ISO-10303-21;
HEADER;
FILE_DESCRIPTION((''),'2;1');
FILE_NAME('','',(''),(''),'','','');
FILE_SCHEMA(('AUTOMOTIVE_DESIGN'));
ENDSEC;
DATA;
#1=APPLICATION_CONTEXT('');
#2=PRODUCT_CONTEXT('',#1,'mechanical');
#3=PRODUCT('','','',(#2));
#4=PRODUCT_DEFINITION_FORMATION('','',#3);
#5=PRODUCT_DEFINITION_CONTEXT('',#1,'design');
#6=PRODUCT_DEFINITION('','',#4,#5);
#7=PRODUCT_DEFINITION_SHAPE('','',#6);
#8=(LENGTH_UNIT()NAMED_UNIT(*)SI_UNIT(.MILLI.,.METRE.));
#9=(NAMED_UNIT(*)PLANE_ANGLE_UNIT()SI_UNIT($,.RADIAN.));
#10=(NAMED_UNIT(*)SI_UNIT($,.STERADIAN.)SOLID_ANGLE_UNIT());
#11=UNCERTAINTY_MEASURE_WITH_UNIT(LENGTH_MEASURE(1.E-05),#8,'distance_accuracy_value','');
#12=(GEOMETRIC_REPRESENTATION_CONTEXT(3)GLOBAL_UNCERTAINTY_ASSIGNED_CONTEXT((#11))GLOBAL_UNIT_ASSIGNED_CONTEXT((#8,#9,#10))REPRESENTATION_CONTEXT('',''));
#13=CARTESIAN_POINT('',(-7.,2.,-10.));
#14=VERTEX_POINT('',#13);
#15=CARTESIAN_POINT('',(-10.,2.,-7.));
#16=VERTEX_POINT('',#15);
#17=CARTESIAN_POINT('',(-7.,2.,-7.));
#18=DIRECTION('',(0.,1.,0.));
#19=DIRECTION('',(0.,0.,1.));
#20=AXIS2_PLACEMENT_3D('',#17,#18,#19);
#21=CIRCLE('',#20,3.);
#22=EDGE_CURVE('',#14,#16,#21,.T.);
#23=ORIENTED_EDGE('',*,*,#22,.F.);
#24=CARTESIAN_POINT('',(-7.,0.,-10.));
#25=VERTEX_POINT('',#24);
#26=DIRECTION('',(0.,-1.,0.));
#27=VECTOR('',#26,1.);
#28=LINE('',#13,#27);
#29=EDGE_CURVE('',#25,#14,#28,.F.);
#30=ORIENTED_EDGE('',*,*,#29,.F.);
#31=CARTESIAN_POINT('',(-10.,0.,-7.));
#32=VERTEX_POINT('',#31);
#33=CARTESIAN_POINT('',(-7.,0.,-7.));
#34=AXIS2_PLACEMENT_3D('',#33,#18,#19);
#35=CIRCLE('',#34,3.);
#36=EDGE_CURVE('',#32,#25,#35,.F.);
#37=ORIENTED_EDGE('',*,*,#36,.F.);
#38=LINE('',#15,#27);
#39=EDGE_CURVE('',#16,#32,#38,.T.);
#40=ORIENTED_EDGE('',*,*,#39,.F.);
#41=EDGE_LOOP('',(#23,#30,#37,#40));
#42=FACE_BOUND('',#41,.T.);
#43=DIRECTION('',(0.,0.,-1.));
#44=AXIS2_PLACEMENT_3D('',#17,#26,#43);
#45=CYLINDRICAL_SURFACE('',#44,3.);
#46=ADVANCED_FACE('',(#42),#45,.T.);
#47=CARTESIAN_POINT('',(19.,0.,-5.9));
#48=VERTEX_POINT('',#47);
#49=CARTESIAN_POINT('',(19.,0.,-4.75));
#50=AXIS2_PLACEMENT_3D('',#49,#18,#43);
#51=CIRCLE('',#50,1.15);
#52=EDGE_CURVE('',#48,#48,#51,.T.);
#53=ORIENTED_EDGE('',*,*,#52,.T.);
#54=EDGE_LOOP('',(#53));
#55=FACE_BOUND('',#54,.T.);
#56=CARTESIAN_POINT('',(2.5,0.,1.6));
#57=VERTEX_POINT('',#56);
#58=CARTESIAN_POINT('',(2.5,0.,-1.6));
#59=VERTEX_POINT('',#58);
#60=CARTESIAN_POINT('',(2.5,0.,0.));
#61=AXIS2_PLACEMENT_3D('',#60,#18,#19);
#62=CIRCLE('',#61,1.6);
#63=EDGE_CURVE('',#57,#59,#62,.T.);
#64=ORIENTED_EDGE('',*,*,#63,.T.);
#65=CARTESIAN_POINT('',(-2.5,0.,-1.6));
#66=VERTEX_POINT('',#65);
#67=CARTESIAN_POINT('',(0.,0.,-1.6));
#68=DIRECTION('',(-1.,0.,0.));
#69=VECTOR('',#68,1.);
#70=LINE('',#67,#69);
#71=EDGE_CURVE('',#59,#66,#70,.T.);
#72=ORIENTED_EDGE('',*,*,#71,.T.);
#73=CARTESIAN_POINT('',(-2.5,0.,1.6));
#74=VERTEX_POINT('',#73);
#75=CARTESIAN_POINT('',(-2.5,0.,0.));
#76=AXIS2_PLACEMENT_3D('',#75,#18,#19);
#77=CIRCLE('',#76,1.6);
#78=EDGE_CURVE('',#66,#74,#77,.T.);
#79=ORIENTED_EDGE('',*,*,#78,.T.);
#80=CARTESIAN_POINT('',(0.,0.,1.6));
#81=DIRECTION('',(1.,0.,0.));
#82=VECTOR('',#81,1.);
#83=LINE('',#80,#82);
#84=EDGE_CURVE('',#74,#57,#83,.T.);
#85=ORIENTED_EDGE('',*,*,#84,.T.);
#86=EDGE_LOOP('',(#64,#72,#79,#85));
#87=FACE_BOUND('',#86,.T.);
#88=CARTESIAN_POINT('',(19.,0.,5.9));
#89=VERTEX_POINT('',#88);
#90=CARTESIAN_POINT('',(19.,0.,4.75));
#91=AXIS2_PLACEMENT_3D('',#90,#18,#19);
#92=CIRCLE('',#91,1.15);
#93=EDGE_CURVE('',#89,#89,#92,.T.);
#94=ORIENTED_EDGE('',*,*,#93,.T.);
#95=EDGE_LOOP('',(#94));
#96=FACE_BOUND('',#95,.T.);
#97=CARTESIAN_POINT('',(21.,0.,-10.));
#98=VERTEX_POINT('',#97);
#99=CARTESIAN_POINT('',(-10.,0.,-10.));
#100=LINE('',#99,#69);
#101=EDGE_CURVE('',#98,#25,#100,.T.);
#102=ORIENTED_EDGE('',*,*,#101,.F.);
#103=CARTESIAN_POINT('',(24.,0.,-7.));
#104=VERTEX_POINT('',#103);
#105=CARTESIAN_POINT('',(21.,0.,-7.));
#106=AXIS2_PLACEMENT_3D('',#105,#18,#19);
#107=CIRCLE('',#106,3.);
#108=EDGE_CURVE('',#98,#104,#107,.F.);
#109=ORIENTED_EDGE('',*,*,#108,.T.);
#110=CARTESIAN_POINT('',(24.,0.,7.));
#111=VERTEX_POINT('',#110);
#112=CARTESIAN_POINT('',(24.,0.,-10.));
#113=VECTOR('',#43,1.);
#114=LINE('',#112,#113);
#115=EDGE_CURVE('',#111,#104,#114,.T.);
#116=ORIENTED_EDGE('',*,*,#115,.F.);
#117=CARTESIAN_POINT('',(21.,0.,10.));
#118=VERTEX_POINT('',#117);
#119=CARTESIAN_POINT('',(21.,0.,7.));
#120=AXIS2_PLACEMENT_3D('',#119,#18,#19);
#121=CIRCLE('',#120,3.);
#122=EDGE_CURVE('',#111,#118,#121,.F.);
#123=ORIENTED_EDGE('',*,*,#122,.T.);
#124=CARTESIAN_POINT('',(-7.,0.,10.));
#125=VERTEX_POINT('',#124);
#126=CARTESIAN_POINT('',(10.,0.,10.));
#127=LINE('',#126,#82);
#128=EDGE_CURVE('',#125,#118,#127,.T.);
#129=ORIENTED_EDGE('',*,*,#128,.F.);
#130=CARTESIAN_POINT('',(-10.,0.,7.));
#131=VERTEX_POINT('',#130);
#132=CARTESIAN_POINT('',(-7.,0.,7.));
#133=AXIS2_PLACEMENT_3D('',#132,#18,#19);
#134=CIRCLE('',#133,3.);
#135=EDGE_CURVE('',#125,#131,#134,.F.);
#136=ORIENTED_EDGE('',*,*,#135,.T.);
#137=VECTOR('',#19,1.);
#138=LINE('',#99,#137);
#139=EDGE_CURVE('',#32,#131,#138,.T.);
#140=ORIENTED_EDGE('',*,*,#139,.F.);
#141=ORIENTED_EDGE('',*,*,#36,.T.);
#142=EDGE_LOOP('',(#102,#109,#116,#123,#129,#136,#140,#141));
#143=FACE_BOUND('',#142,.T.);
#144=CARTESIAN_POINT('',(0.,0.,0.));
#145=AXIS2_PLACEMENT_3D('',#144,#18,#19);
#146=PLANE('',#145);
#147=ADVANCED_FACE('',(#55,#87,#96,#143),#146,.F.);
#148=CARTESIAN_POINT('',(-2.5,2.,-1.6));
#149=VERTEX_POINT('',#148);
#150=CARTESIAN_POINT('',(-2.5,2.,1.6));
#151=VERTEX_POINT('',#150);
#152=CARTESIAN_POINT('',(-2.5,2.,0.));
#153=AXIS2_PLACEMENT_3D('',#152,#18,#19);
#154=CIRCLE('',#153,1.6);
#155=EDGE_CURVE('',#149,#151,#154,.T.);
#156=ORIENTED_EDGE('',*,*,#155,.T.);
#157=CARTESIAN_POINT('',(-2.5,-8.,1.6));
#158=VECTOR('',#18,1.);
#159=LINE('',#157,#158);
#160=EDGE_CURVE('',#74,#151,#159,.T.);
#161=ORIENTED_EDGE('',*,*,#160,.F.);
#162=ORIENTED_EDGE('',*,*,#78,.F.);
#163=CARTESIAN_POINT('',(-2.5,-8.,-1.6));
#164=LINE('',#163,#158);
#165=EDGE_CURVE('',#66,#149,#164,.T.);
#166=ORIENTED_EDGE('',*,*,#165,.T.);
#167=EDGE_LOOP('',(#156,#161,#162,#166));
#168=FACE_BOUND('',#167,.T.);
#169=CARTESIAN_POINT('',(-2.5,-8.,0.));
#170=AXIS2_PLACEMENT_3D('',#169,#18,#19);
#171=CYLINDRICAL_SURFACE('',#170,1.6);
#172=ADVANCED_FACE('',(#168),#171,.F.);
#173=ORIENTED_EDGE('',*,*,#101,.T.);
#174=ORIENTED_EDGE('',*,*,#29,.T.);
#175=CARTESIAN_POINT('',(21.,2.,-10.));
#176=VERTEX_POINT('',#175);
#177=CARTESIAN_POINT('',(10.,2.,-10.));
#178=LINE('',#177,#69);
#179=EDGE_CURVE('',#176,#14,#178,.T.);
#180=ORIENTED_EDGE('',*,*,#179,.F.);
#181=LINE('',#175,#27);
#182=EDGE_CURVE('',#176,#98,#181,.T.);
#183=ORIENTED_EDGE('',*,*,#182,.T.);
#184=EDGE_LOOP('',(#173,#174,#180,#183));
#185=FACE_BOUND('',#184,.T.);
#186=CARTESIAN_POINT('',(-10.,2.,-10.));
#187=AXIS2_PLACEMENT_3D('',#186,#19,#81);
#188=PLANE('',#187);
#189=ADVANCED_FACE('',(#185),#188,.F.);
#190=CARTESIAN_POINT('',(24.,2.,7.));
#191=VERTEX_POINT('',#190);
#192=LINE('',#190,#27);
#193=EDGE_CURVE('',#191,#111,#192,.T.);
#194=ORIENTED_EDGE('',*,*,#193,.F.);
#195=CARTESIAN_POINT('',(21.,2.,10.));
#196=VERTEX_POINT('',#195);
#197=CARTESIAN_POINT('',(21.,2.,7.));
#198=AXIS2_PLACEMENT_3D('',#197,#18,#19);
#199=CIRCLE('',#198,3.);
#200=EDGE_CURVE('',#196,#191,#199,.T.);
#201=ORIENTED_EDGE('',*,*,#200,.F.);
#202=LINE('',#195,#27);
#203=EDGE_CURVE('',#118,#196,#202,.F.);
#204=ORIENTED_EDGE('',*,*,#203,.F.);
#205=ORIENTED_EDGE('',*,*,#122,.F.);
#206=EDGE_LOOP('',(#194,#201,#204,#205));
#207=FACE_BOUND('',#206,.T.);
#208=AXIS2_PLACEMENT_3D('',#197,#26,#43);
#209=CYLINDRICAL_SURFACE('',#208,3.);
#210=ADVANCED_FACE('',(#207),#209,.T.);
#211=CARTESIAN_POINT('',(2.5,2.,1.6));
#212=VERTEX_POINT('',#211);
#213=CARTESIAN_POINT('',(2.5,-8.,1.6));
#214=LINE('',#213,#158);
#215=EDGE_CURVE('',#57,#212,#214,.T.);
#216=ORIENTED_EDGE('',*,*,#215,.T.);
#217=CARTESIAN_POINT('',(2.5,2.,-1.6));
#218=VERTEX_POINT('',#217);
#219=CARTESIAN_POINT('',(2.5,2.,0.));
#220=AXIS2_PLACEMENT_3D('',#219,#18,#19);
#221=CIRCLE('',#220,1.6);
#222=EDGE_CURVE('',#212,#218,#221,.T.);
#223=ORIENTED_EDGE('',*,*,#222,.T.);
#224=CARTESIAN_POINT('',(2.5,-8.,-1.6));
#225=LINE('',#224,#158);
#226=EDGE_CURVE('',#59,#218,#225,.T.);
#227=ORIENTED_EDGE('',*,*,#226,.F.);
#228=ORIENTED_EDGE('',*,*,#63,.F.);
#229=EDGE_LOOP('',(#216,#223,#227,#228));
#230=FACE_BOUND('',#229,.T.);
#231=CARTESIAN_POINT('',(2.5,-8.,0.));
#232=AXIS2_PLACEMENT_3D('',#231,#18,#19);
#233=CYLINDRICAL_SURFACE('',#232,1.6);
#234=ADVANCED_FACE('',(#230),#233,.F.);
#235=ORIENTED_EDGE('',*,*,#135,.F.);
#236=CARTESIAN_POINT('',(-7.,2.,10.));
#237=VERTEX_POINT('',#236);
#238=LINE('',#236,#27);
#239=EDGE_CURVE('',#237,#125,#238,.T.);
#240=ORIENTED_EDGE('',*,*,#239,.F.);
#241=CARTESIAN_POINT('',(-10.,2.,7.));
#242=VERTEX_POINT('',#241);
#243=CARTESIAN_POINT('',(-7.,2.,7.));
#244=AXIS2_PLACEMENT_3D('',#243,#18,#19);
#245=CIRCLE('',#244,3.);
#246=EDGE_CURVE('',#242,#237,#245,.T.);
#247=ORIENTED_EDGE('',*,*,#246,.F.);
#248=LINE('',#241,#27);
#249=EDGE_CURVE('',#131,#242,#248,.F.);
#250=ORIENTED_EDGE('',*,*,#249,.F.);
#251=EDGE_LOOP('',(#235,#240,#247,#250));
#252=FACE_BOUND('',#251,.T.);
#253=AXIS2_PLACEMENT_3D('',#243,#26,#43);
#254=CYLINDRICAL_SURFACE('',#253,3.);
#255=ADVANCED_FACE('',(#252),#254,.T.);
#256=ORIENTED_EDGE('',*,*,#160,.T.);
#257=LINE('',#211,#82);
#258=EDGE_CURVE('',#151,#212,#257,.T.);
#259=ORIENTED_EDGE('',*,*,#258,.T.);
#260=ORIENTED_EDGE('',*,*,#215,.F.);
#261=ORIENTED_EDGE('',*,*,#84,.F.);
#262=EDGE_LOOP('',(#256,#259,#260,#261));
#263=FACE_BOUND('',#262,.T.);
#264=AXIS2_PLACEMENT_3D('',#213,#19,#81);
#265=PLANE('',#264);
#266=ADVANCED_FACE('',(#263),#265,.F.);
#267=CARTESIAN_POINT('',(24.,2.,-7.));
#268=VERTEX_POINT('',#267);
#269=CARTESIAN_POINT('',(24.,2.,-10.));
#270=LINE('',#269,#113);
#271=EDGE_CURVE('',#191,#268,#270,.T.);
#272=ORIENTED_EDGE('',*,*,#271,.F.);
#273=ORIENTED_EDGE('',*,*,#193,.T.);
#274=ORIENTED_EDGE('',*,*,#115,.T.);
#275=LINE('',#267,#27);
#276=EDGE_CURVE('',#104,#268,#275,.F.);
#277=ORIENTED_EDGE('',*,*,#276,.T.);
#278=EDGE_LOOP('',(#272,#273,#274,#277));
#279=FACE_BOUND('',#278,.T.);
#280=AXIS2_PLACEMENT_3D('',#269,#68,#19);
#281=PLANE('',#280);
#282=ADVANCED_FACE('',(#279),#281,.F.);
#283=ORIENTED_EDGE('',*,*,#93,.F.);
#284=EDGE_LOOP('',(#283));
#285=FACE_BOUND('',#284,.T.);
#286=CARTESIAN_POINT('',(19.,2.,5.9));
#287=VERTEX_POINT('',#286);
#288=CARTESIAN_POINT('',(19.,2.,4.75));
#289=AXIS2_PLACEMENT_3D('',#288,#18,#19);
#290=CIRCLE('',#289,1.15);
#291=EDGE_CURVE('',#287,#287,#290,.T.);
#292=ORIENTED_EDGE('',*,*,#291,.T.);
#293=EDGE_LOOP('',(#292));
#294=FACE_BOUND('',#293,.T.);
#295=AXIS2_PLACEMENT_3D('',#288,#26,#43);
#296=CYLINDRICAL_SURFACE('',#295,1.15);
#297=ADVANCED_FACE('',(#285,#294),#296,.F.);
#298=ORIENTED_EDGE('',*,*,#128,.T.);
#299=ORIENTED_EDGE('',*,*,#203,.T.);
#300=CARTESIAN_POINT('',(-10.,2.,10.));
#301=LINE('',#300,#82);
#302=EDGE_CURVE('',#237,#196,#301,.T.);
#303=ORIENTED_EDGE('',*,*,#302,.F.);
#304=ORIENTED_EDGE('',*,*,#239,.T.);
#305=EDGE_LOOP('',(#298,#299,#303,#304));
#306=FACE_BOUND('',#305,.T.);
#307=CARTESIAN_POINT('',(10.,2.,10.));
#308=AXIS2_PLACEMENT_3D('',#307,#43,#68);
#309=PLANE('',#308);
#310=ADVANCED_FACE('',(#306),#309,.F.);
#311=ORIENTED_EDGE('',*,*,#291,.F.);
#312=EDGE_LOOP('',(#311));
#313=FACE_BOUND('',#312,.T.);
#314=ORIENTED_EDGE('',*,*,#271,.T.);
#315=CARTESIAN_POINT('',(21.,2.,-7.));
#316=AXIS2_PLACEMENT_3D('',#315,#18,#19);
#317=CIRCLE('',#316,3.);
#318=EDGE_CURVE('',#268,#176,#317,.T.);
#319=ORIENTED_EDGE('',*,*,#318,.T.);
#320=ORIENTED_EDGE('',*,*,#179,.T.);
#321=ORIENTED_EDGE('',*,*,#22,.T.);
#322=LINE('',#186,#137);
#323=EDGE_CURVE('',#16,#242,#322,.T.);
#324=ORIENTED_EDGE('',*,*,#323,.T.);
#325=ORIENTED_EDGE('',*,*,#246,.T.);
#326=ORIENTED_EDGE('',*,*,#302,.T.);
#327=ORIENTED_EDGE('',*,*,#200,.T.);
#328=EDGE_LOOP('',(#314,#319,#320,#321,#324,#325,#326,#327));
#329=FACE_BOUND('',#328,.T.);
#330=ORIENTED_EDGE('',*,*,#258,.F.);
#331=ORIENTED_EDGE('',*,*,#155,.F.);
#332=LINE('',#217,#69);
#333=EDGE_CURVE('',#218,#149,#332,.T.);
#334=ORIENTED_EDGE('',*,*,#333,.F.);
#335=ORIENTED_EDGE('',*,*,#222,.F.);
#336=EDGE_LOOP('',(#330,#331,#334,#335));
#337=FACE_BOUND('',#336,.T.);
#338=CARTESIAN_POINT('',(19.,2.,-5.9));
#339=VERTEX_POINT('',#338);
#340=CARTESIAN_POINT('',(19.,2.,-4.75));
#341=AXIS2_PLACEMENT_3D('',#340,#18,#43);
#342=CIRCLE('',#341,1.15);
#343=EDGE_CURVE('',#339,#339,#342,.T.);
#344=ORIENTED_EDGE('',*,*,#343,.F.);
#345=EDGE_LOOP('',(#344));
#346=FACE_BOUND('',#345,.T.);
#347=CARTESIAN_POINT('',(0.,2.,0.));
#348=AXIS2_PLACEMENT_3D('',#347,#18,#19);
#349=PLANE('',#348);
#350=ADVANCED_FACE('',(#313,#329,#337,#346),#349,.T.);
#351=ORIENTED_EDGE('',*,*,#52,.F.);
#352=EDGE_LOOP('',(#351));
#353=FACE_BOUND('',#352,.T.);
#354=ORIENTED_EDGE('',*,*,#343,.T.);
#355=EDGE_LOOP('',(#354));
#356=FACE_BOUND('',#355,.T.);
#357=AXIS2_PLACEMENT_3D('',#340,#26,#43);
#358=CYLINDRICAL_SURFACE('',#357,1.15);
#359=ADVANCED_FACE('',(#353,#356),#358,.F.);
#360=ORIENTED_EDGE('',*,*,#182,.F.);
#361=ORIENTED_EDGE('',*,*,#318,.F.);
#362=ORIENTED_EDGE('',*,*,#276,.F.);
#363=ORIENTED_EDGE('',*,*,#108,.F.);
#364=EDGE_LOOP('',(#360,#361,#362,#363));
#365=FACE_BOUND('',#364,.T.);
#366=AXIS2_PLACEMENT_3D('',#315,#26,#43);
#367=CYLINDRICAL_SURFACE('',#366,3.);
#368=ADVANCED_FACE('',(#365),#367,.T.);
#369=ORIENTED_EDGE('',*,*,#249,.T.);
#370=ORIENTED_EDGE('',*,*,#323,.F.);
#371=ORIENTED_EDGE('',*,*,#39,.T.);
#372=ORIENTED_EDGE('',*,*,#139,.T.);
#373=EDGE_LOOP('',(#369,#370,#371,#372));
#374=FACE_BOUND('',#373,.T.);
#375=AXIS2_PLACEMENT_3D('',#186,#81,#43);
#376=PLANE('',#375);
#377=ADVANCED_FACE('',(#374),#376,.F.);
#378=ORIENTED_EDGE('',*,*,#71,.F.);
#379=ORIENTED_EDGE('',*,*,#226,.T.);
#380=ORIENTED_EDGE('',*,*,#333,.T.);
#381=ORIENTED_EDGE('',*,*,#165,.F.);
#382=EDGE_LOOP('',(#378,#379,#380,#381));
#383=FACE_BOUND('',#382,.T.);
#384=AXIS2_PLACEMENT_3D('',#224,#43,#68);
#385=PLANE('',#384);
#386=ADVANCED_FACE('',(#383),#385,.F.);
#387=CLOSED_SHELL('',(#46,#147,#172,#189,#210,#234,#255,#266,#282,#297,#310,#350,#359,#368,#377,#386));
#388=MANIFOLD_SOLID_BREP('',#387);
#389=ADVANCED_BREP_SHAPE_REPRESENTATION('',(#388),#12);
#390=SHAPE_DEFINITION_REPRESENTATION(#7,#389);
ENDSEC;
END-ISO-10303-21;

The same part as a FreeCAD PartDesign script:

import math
import FreeCAD as App
import Part
import Sketcher

V = App.Vector
Q = App.Units.Quantity


def edges_at(feature, points):
    """Names of the edges that pass closest to the given points."""
    edges = feature.Shape.Edges
    near = lambda p: min(range(len(edges)), key=lambda i: edges[i].distToShape(Part.Vertex(*p))[0])
    return sorted({f"Edge{near(p) + 1}" for p in points})

doc = App.newDocument("Part")
body = doc.addObject("PartDesign::Body", "Body")

# Sketch on XZ plane
sketch1 = body.newObject("Sketcher::SketchObject", "Sketch")
sketch1.AttachmentSupport = (doc.getObject("XZ_Plane"), [""])
sketch1.MapMode = "FlatFace"
sketch1.addGeometry([
    Part.LineSegment(V(24, -10, 0), V(-10, -10, 0)),  # 0
    Part.LineSegment(V(-10, -10, 0), V(-10, 10, 0)),  # 1
    Part.LineSegment(V(-10, 10, 0), V(24, 10, 0)),  # 2
    Part.LineSegment(V(24, 10, 0), V(24, -10, 0)),  # 3
    Part.Circle(V(19, 4.75, 0), V(0, 0, 1), 1.15),  # 4
    Part.Circle(V(19, -4.75, 0), V(0, 0, 1), 1.15),  # 5
    Part.Circle(V(0, 0, 0), V(0, 0, 1), 1.6),  # 6
], False)
sketch1.addConstraint([
    Sketcher.Constraint("Coincident", 0, 2, 1, 1),
    Sketcher.Constraint("Coincident", 1, 2, 2, 1),
    Sketcher.Constraint("Coincident", 2, 2, 3, 1),
    Sketcher.Constraint("Coincident", 3, 2, 0, 1),
    Sketcher.Constraint("Horizontal", 0),
    Sketcher.Constraint("Vertical", 1),
    Sketcher.Constraint("Horizontal", 2),
    Sketcher.Constraint("Vertical", 3),
    Sketcher.Constraint("Coincident", 6, 3, -1, 1),
    Sketcher.Constraint("Equal", 4, 5),
    Sketcher.Constraint("Symmetric", 4, 3, 5, 3, -1),
    Sketcher.Constraint("Diameter", 4, Q("2.3 mm")),
    Sketcher.Constraint("Diameter", 6, Q("3.2 mm")),
    Sketcher.Constraint("DistanceX", 0, 2, 0, 1, Q("34 mm")),
    Sketcher.Constraint("DistanceY", 1, 1, 1, 2, Q("20 mm")),
    Sketcher.Constraint("DistanceX", -1, 1, 4, 3, Q("19 mm")),
    Sketcher.Constraint("DistanceX", 0, 2, -1, 1, Q("10 mm")),
    Sketcher.Constraint("DistanceY", 0, 2, -1, 1, Q("10 mm")),
    Sketcher.Constraint("DistanceY", 5, 3, 4, 3, Q("9.5 mm")),
])
pad1 = body.newObject("PartDesign::Pad", "Pad")
pad1.Profile = sketch1
pad1.Length = 2
pad1.Reversed = True
doc.recompute()

fillet = body.newObject("PartDesign::Fillet", "Fillet")
fillet.Base = (pad1, edges_at(pad1, [
    (-10, 1, -10),
    (24, 1, -10),
    (24, 1, 10),
    (-10, 1, 10),
]))
fillet.Radius = 3

# Sketch on XZ plane
sketch2 = body.newObject("Sketcher::SketchObject", "Sketch001")
sketch2.AttachmentSupport = (doc.getObject("XZ_Plane"), [""])
sketch2.MapMode = "FlatFace"
sketch2.AttachmentOffset = App.Placement(V(0, 0, -2), App.Rotation())
sketch2.addGeometry([
    Part.LineSegment(V(-2.5, 1.6, 0), V(2.5, 1.6, 0)),
    Part.ArcOfCircle(Part.Circle(V(2.5, 0, 0), V(0, 0, 1), 1.6), math.radians(-90), math.radians(90)),
    Part.LineSegment(V(2.5, -1.6, 0), V(-2.5, -1.6, 0)),
    Part.ArcOfCircle(Part.Circle(V(-2.5, 0, 0), V(0, 0, 1), 1.6), math.radians(90), math.radians(270)),
], False)
sketch2.addConstraint([
    Sketcher.Constraint("Tangent", 0, 2, 1, 2),
    Sketcher.Constraint("Tangent", 1, 1, 2, 1),
    Sketcher.Constraint("Tangent", 2, 2, 3, 2),
    Sketcher.Constraint("Tangent", 3, 1, 0, 1),
    Sketcher.Constraint("Horizontal", 0),
    Sketcher.Constraint("Horizontal", 2),
    Sketcher.Constraint("Symmetric", 1, 3, 3, 3, -1, 1),
    Sketcher.Constraint("Radius", 1, Q("1.6 mm")),
    Sketcher.Constraint("DistanceX", 0, 1, 0, 2, Q("5 mm")),
])
pocket1 = body.newObject("PartDesign::Pocket", "Pocket")
pocket1.Profile = sketch2
pocket1.Length = 10
pocket1.Reversed = True

doc.recompute()
